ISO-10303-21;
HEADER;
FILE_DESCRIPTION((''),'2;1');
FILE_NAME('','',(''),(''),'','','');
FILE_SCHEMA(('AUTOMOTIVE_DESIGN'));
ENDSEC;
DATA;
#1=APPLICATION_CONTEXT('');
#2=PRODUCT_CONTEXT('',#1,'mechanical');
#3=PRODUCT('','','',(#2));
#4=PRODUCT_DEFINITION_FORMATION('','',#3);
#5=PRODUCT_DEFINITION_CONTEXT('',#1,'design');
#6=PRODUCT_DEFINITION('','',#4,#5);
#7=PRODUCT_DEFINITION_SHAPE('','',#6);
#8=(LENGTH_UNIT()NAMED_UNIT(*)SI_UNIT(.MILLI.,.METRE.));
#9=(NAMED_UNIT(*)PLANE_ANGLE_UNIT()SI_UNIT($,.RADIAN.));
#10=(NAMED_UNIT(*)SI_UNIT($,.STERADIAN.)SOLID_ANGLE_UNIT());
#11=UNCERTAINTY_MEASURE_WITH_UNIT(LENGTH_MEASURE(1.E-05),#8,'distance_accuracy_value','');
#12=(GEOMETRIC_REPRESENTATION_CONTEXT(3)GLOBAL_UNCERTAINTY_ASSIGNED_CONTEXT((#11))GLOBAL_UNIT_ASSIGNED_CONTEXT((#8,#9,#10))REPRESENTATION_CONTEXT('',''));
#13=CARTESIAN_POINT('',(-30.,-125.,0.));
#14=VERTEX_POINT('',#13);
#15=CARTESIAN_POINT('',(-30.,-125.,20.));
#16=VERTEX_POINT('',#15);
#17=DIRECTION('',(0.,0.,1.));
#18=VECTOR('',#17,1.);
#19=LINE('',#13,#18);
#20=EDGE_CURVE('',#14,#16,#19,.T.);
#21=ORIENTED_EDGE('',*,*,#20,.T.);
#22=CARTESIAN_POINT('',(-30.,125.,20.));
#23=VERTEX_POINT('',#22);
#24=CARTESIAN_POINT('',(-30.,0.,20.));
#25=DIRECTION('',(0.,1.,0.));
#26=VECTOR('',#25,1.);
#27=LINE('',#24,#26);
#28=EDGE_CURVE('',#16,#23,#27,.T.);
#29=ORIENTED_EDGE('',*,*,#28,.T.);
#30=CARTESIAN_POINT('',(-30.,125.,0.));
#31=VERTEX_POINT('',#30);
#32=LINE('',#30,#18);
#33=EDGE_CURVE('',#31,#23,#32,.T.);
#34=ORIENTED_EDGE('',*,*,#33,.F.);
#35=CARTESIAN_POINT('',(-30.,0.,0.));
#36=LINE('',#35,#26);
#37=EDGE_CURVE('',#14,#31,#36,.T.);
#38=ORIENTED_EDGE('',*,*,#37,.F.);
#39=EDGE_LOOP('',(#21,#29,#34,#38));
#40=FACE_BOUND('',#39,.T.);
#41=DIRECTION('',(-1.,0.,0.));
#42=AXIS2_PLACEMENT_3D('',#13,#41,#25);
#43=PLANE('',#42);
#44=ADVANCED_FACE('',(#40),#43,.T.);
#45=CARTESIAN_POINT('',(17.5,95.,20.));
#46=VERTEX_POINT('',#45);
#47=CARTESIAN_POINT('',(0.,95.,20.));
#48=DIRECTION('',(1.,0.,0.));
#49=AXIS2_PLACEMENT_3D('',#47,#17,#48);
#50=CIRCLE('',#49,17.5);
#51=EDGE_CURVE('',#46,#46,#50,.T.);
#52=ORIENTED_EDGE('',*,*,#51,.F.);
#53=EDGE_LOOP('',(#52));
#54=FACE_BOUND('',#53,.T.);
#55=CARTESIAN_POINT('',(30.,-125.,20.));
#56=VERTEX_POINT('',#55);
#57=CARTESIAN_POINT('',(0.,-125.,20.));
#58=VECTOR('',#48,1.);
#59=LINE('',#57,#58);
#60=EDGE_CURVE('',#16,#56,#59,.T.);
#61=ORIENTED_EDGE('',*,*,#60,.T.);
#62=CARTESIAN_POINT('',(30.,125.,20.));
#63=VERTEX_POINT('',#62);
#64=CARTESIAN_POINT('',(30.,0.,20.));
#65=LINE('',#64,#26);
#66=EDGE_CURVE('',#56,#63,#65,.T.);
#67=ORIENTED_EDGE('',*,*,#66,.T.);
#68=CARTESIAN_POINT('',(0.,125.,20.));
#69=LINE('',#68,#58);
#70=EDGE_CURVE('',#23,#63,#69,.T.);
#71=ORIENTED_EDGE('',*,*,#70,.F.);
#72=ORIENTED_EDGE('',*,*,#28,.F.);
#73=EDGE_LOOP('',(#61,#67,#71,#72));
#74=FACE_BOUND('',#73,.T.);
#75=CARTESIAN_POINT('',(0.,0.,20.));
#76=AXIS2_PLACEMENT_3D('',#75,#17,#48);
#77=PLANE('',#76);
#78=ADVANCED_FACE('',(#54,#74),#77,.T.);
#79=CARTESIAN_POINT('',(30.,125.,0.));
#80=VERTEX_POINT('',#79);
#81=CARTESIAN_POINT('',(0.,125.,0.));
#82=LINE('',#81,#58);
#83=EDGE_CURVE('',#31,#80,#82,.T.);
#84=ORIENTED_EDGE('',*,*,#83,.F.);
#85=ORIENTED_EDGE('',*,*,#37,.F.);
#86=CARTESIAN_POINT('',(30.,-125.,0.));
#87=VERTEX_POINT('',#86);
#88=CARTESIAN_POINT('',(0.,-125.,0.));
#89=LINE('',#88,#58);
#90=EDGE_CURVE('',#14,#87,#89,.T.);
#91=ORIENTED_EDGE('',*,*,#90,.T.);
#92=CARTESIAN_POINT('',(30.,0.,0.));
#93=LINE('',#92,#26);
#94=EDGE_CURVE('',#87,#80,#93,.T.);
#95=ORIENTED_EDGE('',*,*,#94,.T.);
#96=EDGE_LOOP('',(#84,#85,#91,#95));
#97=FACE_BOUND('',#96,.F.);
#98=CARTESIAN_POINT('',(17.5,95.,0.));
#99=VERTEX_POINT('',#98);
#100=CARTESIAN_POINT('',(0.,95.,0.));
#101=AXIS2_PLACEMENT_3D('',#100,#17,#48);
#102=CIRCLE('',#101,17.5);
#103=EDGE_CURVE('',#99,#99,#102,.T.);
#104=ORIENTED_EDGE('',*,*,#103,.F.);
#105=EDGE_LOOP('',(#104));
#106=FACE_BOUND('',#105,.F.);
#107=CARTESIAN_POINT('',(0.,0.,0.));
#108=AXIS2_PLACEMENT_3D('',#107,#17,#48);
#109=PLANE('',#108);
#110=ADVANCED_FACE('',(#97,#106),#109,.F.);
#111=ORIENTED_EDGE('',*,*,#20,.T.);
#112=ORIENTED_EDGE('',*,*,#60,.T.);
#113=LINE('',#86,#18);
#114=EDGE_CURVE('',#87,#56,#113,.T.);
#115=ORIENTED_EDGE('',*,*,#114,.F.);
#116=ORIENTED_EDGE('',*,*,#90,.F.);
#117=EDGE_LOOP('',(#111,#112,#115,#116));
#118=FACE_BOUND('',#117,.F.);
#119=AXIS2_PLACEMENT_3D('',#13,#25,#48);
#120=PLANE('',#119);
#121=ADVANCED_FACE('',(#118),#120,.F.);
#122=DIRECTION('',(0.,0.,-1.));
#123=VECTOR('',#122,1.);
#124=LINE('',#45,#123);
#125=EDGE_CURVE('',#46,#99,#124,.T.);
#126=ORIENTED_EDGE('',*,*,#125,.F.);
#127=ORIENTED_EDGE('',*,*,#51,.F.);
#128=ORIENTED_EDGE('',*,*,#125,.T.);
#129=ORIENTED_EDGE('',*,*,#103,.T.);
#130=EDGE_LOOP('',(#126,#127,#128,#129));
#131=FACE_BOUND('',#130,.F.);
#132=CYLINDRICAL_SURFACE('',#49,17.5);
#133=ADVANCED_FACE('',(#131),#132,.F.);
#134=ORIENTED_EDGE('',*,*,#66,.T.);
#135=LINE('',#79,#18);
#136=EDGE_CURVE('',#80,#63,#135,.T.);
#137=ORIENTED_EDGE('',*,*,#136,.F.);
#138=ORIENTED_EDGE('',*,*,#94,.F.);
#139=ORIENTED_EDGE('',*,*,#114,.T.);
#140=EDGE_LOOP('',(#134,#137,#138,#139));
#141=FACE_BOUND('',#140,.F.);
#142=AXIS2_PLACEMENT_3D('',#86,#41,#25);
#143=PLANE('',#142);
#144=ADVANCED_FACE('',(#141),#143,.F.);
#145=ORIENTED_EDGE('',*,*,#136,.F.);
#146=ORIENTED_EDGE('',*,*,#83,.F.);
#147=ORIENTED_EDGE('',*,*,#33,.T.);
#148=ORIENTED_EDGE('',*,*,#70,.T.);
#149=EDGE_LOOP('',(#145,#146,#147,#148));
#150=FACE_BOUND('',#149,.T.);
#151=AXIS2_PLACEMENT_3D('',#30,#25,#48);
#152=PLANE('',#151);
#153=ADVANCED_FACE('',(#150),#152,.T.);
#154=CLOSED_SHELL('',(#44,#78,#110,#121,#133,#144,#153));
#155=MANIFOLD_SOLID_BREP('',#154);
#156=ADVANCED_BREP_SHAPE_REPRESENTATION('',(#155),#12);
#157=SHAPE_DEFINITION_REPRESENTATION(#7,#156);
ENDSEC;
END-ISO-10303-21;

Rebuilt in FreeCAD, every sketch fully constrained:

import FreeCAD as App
import Part
import Sketcher

doc = App.newDocument("Part")
body = doc.addObject("PartDesign::Body", "Body")

# Sketch on XY plane
sketch1 = body.newObject("Sketcher::SketchObject", "Sketch")
sketch1.AttachmentSupport = (doc.getObject("XY_Plane"), [""])
sketch1.MapMode = "FlatFace"
sketch1.addGeometry([
    Part.LineSegment(App.Vector(-30, 125, 0), App.Vector(-30, -125, 0)),
    Part.LineSegment(App.Vector(-30, -125, 0), App.Vector(30, -125, 0)),
    Part.LineSegment(App.Vector(30, -125, 0), App.Vector(30, 125, 0)),
    Part.LineSegment(App.Vector(30, 125, 0), App.Vector(-30, 125, 0)),
], False)
sketch1.addConstraint([
    Sketcher.Constraint("Coincident", 0, 2, 1, 1),
    Sketcher.Constraint("Coincident", 1, 2, 2, 1),
    Sketcher.Constraint("Coincident", 2, 2, 3, 1),
    Sketcher.Constraint("Coincident", 3, 2, 0, 1),
    Sketcher.Constraint("Vertical", 0),
    Sketcher.Constraint("Horizontal", 1),
    Sketcher.Constraint("Vertical", 2),
    Sketcher.Constraint("Horizontal", 3),
    Sketcher.Constraint("Symmetric", 0, 2, 2, 2, -1, 1),
    Sketcher.Constraint("DistanceX", 1, 1, 1, 2, 60.0),
    Sketcher.Constraint("DistanceY", 0, 2, 0, 1, 250.0),
])
pad1 = body.newObject("PartDesign::Pad", "Pad")
pad1.Profile = sketch1
pad1.Length = 20

# Sketch on XY plane
sketch2 = body.newObject("Sketcher::SketchObject", "Sketch001")
sketch2.AttachmentSupport = (doc.getObject("XY_Plane"), [""])
sketch2.MapMode = "FlatFace"
sketch2.AttachmentOffset = App.Placement(App.Vector(0, 0, 20), App.Rotation())
sketch2.addGeometry(Part.Circle(App.Vector(0, 95, 0), App.Vector(0, 0, 1), 18), False)
sketch2.addConstraint([
    Sketcher.Constraint("PointOnObject", 0, 3, -2),
    Sketcher.Constraint("Diameter", 0, 35.0),
    Sketcher.Constraint("DistanceY", -1, 1, 0, 3, 95.0),
])
pocket1 = body.newObject("PartDesign::Pocket", "Pocket")
pocket1.Profile = sketch2
pocket1.Type = "ThroughAll"

doc.recompute()
